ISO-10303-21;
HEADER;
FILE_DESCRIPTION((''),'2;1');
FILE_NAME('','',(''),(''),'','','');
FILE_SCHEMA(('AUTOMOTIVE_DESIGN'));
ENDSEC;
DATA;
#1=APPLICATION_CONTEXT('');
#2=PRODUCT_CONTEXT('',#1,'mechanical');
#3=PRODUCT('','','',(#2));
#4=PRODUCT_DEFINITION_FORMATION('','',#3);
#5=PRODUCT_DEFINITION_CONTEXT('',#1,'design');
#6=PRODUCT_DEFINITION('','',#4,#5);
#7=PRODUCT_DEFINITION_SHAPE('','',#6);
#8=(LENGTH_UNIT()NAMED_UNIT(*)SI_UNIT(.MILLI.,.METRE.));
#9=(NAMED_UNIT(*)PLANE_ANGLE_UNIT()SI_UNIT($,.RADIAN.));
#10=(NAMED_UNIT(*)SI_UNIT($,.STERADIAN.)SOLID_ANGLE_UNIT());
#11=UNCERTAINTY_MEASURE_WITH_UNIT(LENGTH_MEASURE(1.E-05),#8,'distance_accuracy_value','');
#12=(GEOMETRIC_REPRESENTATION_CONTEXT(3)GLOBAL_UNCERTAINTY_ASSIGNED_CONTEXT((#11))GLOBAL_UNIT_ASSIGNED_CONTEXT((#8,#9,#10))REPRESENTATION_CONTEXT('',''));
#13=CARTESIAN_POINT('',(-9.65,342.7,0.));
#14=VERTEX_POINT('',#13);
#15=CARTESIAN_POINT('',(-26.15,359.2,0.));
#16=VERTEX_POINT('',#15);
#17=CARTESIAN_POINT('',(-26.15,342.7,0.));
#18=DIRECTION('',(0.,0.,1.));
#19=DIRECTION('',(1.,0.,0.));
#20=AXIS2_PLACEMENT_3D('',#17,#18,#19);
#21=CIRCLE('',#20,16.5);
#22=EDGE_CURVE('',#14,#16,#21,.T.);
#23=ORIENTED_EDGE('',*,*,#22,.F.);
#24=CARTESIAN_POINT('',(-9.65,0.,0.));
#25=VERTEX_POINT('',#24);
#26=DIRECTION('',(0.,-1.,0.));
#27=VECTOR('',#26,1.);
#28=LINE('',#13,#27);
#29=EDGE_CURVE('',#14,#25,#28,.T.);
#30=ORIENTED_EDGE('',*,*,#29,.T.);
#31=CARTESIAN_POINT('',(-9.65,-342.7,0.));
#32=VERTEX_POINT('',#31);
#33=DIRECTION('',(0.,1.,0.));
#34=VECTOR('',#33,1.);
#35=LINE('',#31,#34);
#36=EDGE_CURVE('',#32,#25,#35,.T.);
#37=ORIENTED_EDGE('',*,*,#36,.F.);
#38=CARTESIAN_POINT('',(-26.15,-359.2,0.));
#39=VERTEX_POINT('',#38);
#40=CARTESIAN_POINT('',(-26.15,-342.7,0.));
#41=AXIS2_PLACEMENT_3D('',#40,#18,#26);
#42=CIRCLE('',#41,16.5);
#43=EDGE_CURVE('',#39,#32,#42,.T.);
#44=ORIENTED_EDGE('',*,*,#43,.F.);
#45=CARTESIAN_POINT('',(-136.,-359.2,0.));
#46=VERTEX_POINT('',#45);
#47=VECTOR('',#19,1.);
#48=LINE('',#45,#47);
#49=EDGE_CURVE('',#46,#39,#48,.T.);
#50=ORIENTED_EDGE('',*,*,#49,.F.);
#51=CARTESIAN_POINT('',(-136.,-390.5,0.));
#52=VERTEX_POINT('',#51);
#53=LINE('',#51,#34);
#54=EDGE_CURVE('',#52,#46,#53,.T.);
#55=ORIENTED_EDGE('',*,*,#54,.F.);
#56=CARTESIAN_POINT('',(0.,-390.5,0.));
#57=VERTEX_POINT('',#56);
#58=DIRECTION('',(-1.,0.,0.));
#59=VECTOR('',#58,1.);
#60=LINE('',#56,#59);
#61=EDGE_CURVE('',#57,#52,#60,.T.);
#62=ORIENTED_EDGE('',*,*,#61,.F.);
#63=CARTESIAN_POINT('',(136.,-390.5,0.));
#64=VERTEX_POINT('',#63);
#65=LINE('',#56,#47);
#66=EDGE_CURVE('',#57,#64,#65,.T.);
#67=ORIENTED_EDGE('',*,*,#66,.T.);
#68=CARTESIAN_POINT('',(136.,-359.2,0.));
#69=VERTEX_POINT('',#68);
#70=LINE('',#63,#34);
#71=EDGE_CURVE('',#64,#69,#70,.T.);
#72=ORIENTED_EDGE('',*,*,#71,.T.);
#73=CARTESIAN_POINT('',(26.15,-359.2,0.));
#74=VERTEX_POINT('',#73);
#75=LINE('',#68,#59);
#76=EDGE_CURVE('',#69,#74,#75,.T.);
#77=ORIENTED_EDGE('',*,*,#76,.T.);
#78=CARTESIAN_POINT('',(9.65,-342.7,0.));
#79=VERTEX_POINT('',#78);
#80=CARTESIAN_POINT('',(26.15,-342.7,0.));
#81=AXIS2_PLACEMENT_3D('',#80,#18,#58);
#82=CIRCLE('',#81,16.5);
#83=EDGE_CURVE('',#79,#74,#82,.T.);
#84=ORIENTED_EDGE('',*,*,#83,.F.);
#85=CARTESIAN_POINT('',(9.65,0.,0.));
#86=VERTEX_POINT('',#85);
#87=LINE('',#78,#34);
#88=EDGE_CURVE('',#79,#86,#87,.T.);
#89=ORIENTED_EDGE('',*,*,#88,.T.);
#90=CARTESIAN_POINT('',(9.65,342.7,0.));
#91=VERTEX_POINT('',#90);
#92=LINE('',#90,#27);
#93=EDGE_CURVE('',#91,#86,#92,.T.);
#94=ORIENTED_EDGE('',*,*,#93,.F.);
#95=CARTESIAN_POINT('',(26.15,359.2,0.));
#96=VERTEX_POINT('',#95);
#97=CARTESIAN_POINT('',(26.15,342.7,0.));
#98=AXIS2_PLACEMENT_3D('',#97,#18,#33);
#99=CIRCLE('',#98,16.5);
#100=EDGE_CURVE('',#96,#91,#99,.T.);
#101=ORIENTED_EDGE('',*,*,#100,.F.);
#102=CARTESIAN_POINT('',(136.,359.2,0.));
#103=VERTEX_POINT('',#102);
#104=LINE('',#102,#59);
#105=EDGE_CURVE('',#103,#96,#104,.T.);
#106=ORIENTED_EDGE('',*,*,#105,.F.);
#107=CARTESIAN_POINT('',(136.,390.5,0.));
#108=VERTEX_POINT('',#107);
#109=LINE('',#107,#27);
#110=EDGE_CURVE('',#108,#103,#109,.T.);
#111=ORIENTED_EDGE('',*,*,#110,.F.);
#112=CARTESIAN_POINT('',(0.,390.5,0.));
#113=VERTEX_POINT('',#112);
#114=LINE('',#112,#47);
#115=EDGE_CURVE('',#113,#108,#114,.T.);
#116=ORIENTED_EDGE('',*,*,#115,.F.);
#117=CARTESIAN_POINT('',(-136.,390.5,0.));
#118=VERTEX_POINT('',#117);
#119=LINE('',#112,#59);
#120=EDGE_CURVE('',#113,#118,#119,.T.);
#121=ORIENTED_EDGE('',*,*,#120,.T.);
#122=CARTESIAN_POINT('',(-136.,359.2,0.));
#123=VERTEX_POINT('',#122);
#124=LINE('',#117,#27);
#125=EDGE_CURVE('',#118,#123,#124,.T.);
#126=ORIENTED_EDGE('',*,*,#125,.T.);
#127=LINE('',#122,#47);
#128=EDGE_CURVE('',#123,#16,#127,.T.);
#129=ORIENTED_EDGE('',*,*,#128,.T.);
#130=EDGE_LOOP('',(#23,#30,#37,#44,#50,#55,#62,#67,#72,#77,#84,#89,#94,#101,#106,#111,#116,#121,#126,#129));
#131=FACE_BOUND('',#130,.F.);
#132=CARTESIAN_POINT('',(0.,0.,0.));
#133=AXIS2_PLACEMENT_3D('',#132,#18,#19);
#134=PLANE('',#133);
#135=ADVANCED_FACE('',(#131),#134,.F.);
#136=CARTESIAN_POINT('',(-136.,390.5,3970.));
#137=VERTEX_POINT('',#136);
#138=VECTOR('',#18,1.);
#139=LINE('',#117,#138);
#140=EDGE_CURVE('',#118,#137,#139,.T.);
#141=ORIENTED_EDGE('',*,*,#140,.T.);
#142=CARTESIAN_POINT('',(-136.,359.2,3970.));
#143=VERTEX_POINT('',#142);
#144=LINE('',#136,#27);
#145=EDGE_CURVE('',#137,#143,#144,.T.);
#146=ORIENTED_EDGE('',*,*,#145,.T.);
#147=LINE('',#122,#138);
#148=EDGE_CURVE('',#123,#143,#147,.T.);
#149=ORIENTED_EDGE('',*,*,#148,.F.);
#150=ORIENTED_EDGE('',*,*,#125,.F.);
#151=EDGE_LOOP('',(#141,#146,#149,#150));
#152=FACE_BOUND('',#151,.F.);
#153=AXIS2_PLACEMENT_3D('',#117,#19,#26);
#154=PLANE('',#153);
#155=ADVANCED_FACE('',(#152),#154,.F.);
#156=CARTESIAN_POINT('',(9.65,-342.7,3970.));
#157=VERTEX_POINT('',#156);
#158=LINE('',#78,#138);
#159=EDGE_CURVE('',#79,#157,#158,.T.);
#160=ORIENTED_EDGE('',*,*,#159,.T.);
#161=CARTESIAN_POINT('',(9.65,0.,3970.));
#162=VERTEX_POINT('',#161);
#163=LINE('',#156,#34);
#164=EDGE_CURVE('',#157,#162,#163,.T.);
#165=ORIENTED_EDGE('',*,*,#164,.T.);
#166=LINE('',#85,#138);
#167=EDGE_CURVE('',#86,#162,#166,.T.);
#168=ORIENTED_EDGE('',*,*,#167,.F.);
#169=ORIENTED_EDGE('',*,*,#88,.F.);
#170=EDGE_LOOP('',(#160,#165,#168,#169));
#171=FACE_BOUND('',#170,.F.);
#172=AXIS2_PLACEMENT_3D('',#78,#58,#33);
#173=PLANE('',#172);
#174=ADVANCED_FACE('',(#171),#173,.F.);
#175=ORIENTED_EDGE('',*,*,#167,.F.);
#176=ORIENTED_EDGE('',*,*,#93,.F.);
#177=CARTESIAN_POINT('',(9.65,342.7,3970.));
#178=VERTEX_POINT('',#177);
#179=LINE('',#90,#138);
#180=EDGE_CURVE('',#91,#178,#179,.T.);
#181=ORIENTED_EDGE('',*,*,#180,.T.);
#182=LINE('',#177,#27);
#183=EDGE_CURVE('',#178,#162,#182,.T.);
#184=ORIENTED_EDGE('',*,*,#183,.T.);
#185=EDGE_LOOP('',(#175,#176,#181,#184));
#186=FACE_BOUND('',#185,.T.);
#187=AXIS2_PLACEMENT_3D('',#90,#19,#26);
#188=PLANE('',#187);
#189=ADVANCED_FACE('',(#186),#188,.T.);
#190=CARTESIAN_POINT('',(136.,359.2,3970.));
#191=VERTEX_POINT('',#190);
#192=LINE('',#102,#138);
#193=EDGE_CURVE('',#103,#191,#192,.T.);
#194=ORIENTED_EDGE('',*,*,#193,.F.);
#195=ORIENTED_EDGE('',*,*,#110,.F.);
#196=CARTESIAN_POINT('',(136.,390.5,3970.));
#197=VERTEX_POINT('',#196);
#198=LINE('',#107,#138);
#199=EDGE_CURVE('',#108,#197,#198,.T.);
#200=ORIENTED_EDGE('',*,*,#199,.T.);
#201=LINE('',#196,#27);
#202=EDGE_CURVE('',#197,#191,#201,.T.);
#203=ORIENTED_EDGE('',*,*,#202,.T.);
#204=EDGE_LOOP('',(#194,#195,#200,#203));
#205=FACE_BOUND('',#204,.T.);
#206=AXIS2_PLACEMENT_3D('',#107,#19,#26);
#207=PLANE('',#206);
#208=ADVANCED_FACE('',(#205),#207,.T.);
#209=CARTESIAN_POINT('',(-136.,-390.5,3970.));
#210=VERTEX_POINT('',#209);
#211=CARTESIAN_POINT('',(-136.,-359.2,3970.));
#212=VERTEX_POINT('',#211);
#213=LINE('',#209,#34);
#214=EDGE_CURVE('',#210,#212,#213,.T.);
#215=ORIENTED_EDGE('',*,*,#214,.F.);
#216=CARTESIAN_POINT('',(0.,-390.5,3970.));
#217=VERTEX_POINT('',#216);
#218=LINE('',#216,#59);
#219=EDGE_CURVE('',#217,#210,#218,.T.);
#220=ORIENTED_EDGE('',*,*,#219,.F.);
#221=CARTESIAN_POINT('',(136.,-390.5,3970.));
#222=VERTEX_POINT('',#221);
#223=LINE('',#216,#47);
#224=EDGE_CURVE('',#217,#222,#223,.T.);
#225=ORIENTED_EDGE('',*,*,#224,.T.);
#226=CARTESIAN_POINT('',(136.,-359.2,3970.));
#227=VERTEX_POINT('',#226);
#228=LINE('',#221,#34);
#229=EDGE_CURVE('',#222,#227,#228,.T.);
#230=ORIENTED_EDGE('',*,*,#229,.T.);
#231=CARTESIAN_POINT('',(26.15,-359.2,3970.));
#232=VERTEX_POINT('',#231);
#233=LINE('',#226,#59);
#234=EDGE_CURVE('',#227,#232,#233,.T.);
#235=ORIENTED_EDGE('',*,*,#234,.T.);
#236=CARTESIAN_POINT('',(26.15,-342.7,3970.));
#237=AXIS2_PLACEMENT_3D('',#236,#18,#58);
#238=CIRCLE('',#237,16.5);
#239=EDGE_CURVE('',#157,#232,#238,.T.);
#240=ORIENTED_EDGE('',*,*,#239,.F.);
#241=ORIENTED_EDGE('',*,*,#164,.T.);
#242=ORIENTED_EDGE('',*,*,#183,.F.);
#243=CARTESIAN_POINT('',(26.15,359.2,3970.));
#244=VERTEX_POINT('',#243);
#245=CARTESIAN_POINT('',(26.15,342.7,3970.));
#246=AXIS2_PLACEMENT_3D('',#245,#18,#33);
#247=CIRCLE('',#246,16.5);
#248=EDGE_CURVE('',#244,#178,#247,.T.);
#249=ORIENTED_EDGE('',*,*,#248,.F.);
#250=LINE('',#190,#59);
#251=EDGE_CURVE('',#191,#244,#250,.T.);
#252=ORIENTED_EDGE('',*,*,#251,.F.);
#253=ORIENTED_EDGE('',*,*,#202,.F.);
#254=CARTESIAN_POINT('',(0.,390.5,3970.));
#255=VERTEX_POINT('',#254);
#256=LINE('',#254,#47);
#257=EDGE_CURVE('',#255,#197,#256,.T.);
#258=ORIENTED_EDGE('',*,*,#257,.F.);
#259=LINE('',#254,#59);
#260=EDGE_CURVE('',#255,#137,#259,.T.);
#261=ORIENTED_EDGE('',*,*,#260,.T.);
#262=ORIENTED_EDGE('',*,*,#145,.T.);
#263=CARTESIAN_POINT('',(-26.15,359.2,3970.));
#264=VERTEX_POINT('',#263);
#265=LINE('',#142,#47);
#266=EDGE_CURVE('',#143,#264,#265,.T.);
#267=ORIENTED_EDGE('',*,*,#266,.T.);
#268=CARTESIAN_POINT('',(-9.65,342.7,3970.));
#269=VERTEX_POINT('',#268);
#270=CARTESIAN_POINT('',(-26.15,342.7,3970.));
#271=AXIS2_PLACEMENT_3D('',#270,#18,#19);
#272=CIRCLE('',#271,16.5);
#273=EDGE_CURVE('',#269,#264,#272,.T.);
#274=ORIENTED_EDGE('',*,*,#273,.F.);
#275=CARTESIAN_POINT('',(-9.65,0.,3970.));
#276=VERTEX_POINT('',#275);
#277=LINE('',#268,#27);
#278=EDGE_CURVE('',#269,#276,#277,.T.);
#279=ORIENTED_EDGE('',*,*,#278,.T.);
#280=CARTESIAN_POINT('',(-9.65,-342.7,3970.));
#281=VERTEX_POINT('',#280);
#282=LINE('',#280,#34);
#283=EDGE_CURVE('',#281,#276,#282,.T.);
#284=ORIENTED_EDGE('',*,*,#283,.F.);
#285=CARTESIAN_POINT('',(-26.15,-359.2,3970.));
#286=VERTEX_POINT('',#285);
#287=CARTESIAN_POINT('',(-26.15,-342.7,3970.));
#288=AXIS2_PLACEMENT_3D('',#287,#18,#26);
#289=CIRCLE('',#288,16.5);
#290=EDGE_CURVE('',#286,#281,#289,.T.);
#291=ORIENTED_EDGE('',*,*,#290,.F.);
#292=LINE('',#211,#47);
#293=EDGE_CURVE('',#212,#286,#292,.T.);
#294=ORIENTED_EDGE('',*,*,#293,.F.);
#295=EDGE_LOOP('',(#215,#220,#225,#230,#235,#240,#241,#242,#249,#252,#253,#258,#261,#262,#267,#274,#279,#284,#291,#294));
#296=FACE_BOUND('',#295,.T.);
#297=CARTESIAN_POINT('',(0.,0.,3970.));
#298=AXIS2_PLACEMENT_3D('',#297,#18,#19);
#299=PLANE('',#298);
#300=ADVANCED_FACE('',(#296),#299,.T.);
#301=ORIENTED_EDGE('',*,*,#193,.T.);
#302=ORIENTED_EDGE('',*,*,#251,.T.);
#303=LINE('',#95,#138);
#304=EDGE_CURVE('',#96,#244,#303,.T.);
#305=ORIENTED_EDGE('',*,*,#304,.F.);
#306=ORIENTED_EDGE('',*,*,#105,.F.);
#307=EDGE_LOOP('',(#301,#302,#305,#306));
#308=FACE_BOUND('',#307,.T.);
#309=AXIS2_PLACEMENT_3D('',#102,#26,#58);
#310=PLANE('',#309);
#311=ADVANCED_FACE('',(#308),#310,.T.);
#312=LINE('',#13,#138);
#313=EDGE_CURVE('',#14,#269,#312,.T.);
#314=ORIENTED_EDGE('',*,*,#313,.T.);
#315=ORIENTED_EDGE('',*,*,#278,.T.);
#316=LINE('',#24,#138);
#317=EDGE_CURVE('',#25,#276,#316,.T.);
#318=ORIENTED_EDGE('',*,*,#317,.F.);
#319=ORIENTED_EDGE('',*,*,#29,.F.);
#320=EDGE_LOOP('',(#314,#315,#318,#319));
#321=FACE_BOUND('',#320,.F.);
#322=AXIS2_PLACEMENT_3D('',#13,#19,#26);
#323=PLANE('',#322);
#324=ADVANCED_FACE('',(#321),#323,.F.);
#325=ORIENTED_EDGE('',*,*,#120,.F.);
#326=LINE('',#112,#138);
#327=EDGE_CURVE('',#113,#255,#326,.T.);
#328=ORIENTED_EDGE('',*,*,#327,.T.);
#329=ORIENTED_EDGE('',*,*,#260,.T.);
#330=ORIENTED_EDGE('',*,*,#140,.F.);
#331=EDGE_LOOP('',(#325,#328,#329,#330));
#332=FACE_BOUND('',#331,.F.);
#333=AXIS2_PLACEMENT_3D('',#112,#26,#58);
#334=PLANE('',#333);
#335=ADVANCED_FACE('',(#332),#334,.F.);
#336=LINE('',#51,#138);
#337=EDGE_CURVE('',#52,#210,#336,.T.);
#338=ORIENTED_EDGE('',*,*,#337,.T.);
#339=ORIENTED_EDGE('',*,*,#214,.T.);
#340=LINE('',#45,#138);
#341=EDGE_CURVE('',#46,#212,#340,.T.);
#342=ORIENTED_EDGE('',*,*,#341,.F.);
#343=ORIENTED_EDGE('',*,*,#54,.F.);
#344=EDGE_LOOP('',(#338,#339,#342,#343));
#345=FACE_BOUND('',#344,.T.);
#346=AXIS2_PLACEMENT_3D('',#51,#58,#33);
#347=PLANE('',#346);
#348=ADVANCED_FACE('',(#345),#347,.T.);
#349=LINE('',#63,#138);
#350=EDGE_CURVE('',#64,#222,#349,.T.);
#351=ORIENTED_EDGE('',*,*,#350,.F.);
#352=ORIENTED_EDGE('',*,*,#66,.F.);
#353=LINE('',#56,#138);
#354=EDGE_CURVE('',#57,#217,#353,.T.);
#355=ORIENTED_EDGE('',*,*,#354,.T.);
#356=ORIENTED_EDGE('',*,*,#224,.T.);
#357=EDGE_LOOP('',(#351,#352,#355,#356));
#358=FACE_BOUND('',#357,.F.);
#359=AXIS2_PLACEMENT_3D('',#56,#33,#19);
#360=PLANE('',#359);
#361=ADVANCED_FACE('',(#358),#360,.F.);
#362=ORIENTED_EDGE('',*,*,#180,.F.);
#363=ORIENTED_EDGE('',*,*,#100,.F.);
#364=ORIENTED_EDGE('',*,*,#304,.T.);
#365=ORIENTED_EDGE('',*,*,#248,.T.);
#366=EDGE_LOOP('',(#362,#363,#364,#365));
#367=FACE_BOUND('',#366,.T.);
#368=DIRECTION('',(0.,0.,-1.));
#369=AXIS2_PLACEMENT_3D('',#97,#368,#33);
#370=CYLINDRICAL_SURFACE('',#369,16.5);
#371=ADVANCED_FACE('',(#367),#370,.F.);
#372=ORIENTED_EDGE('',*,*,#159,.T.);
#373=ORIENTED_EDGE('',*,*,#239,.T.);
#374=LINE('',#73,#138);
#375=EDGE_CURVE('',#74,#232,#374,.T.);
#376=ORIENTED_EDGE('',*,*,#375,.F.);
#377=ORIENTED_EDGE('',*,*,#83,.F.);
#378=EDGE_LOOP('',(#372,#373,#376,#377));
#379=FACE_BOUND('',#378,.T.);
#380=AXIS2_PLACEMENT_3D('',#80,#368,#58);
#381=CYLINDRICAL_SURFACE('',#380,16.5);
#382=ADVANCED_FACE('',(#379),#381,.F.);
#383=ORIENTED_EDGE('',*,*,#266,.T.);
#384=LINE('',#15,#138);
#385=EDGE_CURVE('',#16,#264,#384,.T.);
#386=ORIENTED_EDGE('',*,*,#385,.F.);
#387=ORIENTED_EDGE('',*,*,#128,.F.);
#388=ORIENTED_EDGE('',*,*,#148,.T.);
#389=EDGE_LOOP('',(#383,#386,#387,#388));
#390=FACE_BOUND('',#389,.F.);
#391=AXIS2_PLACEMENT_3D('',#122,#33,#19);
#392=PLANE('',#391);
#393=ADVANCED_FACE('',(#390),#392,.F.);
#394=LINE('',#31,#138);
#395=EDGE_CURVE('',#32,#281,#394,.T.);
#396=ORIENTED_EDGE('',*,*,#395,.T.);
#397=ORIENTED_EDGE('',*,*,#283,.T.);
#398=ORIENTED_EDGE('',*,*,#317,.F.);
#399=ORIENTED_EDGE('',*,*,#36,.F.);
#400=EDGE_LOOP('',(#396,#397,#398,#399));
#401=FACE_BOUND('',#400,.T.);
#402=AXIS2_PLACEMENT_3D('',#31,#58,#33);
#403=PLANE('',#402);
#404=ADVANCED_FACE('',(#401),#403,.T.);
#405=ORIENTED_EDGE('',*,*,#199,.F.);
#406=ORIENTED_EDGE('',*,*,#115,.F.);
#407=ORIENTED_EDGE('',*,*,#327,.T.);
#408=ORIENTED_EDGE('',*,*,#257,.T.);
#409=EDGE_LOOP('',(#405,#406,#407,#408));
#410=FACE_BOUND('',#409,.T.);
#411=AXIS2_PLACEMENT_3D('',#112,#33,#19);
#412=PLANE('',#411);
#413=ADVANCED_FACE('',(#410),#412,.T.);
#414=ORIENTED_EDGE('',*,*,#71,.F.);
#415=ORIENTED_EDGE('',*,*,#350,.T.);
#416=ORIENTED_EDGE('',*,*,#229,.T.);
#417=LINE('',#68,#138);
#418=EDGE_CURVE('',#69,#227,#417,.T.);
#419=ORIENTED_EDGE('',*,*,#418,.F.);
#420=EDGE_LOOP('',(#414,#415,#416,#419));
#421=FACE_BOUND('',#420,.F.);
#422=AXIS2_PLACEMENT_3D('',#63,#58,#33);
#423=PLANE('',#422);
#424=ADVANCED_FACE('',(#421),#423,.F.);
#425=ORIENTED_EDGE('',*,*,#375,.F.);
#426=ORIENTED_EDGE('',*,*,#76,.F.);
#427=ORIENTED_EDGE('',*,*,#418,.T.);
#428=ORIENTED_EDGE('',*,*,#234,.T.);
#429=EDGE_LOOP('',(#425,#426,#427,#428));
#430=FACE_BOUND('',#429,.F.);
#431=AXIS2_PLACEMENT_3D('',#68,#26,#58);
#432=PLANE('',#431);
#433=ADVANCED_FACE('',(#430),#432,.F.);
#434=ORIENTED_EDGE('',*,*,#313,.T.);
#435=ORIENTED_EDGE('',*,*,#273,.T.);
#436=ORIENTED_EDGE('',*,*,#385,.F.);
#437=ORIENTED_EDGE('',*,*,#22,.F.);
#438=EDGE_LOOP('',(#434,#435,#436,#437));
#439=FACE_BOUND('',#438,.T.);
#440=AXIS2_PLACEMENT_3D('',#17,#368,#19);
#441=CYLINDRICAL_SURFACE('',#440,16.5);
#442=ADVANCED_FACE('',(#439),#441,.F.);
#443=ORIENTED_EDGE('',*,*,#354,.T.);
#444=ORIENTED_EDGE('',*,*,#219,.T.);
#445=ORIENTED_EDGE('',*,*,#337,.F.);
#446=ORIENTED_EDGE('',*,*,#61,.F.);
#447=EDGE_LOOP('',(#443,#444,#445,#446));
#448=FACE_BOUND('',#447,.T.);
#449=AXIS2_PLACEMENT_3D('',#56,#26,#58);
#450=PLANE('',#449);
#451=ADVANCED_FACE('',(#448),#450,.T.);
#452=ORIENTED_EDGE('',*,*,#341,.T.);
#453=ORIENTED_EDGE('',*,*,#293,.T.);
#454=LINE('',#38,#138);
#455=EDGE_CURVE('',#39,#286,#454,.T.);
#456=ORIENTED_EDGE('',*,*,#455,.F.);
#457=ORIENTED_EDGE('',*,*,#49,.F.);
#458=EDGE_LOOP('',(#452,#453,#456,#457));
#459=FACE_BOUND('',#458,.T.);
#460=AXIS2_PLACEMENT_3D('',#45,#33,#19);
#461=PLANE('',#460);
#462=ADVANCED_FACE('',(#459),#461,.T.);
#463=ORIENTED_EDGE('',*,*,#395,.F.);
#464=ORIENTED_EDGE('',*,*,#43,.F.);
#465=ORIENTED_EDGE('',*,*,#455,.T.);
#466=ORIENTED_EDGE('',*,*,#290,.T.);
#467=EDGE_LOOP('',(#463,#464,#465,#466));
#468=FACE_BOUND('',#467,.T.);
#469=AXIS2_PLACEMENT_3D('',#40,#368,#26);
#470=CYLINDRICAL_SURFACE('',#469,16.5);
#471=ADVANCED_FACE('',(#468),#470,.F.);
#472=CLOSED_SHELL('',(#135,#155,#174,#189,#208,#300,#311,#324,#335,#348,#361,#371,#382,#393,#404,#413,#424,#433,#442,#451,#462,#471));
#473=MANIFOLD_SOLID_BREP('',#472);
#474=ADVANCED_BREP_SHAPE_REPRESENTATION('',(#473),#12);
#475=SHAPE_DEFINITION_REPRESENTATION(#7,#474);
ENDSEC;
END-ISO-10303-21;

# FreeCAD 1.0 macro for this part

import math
import FreeCAD as App
import Part
import Sketcher
Q = App.Units.Quantity

doc = App.newDocument("Part")
body = doc.addObject("PartDesign::Body", "Body")

# Sketch on XY plane
sketch1 = doc.addObject("Sketcher::SketchObject", "Sketch")
body.addObject(sketch1)
sketch1.AttachmentSupport = (doc.XY_Plane, [""])
sketch1.MapMode = "FlatFace"
sketch1.addGeometry([
    Part.LineSegment(App.Vector(-136, -359, 0), App.Vector(-136, -390, 0)),  # 0
    Part.LineSegment(App.Vector(-136, -390, 0), App.Vector(136, -390, 0)),  # 1
    Part.LineSegment(App.Vector(136, -390, 0), App.Vector(136, -359, 0)),  # 2
    Part.LineSegment(App.Vector(136, -359, 0), App.Vector(26, -359, 0)),  # 3
    Part.ArcOfCircle(Part.Circle(App.Vector(26, -343, 0), App.Vector(0, 0, 1), 16), math.radians(180), math.radians(270)),  # 4
    Part.LineSegment(App.Vector(10, -343, 0), App.Vector(10, 343, 0)),  # 5
    Part.ArcOfCircle(Part.Circle(App.Vector(26, 343, 0), App.Vector(0, 0, 1), 16), math.radians(90), math.radians(180)),  # 6
    Part.LineSegment(App.Vector(26, 359, 0), App.Vector(136, 359, 0)),  # 7
    Part.LineSegment(App.Vector(136, 359, 0), App.Vector(136, 390, 0)),  # 8
    Part.LineSegment(App.Vector(136, 390, 0), App.Vector(-136, 390, 0)),  # 9
    Part.LineSegment(App.Vector(-136, 390, 0), App.Vector(-136, 359, 0)),  # 10
    Part.LineSegment(App.Vector(-136, 359, 0), App.Vector(-26, 359, 0)),  # 11
    Part.ArcOfCircle(Part.Circle(App.Vector(-26, 343, 0), App.Vector(0, 0, 1), 16), math.radians(0), math.radians(90)),  # 12
    Part.LineSegment(App.Vector(-10, 343, 0), App.Vector(-10, -343, 0)),  # 13
    Part.ArcOfCircle(Part.Circle(App.Vector(-26, -343, 0), App.Vector(0, 0, 1), 16), math.radians(-90), math.radians(0)),  # 14
    Part.LineSegment(App.Vector(-26, -359, 0), App.Vector(-136, -359, 0)),  # 15
], False)
sketch1.addConstraint([
    Sketcher.Constraint("Coincident", 0, 2, 1, 1),
    Sketcher.Constraint("Coincident", 1, 2, 2, 1),
    Sketcher.Constraint("Coincident", 2, 2, 3, 1),
    Sketcher.Constraint("Tangent", 3, 2, 4, 2),
    Sketcher.Constraint("Tangent", 4, 1, 5, 1),
    Sketcher.Constraint("Tangent", 5, 2, 6, 2),
    Sketcher.Constraint("Tangent", 6, 1, 7, 1),
    Sketcher.Constraint("Coincident", 7, 2, 8, 1),
    Sketcher.Constraint("Coincident", 8, 2, 9, 1),
    Sketcher.Constraint("Coincident", 9, 2, 10, 1),
    Sketcher.Constraint("Coincident", 10, 2, 11, 1),
    Sketcher.Constraint("Tangent", 11, 2, 12, 2),
    Sketcher.Constraint("Tangent", 12, 1, 13, 1),
    Sketcher.Constraint("Tangent", 13, 2, 14, 2),
    Sketcher.Constraint("Tangent", 14, 1, 15, 1),
    Sketcher.Constraint("Coincident", 15, 2, 0, 1),
    Sketcher.Constraint("Vertical", 0),
    Sketcher.Constraint("Horizontal", 1),
    Sketcher.Constraint("Vertical", 2),
    Sketcher.Constraint("Horizontal", 3),
    Sketcher.Constraint("Vertical", 5),
    Sketcher.Constraint("Horizontal", 7),
    Sketcher.Constraint("Vertical", 8),
    Sketcher.Constraint("Horizontal", 9),
    Sketcher.Constraint("Vertical", 10),
    Sketcher.Constraint("Horizontal", 11),
    Sketcher.Constraint("Vertical", 13),
    Sketcher.Constraint("Horizontal", 15),
    Sketcher.Constraint("Equal", 4, 6),
    Sketcher.Constraint("Equal", 6, 12),
    Sketcher.Constraint("Equal", 12, 14),
    Sketcher.Constraint("Symmetric", 4, 3, 12, 3, -1, 1),
    Sketcher.Constraint("Symmetric", 0, 2, 8, 2, -1, 1),
    Sketcher.Constraint("Symmetric", 7, 2, 10, 2, -2),
    Sketcher.Constraint("Symmetric", 2, 2, 15, 2, -2),
    Sketcher.Constraint("Radius", 4, Q("16.5 mm")),
    Sketcher.Constraint("DistanceY", 0, 2, 0, 1, Q("31.3 mm")),
    Sketcher.Constraint("DistanceX", 0, 2, -1, 1, Q("136 mm")),
    Sketcher.Constraint("DistanceY", 0, 2, -1, 1, Q("390.5 mm")),
    Sketcher.Constraint("DistanceX", -1, 1, 4, 1, Q("9.65 mm")),
])
pad1 = doc.addObject("PartDesign::Pad", "Pad")
body.addObject(pad1)
pad1.Profile = sketch1
pad1.Length = 3970

doc.recompute()
